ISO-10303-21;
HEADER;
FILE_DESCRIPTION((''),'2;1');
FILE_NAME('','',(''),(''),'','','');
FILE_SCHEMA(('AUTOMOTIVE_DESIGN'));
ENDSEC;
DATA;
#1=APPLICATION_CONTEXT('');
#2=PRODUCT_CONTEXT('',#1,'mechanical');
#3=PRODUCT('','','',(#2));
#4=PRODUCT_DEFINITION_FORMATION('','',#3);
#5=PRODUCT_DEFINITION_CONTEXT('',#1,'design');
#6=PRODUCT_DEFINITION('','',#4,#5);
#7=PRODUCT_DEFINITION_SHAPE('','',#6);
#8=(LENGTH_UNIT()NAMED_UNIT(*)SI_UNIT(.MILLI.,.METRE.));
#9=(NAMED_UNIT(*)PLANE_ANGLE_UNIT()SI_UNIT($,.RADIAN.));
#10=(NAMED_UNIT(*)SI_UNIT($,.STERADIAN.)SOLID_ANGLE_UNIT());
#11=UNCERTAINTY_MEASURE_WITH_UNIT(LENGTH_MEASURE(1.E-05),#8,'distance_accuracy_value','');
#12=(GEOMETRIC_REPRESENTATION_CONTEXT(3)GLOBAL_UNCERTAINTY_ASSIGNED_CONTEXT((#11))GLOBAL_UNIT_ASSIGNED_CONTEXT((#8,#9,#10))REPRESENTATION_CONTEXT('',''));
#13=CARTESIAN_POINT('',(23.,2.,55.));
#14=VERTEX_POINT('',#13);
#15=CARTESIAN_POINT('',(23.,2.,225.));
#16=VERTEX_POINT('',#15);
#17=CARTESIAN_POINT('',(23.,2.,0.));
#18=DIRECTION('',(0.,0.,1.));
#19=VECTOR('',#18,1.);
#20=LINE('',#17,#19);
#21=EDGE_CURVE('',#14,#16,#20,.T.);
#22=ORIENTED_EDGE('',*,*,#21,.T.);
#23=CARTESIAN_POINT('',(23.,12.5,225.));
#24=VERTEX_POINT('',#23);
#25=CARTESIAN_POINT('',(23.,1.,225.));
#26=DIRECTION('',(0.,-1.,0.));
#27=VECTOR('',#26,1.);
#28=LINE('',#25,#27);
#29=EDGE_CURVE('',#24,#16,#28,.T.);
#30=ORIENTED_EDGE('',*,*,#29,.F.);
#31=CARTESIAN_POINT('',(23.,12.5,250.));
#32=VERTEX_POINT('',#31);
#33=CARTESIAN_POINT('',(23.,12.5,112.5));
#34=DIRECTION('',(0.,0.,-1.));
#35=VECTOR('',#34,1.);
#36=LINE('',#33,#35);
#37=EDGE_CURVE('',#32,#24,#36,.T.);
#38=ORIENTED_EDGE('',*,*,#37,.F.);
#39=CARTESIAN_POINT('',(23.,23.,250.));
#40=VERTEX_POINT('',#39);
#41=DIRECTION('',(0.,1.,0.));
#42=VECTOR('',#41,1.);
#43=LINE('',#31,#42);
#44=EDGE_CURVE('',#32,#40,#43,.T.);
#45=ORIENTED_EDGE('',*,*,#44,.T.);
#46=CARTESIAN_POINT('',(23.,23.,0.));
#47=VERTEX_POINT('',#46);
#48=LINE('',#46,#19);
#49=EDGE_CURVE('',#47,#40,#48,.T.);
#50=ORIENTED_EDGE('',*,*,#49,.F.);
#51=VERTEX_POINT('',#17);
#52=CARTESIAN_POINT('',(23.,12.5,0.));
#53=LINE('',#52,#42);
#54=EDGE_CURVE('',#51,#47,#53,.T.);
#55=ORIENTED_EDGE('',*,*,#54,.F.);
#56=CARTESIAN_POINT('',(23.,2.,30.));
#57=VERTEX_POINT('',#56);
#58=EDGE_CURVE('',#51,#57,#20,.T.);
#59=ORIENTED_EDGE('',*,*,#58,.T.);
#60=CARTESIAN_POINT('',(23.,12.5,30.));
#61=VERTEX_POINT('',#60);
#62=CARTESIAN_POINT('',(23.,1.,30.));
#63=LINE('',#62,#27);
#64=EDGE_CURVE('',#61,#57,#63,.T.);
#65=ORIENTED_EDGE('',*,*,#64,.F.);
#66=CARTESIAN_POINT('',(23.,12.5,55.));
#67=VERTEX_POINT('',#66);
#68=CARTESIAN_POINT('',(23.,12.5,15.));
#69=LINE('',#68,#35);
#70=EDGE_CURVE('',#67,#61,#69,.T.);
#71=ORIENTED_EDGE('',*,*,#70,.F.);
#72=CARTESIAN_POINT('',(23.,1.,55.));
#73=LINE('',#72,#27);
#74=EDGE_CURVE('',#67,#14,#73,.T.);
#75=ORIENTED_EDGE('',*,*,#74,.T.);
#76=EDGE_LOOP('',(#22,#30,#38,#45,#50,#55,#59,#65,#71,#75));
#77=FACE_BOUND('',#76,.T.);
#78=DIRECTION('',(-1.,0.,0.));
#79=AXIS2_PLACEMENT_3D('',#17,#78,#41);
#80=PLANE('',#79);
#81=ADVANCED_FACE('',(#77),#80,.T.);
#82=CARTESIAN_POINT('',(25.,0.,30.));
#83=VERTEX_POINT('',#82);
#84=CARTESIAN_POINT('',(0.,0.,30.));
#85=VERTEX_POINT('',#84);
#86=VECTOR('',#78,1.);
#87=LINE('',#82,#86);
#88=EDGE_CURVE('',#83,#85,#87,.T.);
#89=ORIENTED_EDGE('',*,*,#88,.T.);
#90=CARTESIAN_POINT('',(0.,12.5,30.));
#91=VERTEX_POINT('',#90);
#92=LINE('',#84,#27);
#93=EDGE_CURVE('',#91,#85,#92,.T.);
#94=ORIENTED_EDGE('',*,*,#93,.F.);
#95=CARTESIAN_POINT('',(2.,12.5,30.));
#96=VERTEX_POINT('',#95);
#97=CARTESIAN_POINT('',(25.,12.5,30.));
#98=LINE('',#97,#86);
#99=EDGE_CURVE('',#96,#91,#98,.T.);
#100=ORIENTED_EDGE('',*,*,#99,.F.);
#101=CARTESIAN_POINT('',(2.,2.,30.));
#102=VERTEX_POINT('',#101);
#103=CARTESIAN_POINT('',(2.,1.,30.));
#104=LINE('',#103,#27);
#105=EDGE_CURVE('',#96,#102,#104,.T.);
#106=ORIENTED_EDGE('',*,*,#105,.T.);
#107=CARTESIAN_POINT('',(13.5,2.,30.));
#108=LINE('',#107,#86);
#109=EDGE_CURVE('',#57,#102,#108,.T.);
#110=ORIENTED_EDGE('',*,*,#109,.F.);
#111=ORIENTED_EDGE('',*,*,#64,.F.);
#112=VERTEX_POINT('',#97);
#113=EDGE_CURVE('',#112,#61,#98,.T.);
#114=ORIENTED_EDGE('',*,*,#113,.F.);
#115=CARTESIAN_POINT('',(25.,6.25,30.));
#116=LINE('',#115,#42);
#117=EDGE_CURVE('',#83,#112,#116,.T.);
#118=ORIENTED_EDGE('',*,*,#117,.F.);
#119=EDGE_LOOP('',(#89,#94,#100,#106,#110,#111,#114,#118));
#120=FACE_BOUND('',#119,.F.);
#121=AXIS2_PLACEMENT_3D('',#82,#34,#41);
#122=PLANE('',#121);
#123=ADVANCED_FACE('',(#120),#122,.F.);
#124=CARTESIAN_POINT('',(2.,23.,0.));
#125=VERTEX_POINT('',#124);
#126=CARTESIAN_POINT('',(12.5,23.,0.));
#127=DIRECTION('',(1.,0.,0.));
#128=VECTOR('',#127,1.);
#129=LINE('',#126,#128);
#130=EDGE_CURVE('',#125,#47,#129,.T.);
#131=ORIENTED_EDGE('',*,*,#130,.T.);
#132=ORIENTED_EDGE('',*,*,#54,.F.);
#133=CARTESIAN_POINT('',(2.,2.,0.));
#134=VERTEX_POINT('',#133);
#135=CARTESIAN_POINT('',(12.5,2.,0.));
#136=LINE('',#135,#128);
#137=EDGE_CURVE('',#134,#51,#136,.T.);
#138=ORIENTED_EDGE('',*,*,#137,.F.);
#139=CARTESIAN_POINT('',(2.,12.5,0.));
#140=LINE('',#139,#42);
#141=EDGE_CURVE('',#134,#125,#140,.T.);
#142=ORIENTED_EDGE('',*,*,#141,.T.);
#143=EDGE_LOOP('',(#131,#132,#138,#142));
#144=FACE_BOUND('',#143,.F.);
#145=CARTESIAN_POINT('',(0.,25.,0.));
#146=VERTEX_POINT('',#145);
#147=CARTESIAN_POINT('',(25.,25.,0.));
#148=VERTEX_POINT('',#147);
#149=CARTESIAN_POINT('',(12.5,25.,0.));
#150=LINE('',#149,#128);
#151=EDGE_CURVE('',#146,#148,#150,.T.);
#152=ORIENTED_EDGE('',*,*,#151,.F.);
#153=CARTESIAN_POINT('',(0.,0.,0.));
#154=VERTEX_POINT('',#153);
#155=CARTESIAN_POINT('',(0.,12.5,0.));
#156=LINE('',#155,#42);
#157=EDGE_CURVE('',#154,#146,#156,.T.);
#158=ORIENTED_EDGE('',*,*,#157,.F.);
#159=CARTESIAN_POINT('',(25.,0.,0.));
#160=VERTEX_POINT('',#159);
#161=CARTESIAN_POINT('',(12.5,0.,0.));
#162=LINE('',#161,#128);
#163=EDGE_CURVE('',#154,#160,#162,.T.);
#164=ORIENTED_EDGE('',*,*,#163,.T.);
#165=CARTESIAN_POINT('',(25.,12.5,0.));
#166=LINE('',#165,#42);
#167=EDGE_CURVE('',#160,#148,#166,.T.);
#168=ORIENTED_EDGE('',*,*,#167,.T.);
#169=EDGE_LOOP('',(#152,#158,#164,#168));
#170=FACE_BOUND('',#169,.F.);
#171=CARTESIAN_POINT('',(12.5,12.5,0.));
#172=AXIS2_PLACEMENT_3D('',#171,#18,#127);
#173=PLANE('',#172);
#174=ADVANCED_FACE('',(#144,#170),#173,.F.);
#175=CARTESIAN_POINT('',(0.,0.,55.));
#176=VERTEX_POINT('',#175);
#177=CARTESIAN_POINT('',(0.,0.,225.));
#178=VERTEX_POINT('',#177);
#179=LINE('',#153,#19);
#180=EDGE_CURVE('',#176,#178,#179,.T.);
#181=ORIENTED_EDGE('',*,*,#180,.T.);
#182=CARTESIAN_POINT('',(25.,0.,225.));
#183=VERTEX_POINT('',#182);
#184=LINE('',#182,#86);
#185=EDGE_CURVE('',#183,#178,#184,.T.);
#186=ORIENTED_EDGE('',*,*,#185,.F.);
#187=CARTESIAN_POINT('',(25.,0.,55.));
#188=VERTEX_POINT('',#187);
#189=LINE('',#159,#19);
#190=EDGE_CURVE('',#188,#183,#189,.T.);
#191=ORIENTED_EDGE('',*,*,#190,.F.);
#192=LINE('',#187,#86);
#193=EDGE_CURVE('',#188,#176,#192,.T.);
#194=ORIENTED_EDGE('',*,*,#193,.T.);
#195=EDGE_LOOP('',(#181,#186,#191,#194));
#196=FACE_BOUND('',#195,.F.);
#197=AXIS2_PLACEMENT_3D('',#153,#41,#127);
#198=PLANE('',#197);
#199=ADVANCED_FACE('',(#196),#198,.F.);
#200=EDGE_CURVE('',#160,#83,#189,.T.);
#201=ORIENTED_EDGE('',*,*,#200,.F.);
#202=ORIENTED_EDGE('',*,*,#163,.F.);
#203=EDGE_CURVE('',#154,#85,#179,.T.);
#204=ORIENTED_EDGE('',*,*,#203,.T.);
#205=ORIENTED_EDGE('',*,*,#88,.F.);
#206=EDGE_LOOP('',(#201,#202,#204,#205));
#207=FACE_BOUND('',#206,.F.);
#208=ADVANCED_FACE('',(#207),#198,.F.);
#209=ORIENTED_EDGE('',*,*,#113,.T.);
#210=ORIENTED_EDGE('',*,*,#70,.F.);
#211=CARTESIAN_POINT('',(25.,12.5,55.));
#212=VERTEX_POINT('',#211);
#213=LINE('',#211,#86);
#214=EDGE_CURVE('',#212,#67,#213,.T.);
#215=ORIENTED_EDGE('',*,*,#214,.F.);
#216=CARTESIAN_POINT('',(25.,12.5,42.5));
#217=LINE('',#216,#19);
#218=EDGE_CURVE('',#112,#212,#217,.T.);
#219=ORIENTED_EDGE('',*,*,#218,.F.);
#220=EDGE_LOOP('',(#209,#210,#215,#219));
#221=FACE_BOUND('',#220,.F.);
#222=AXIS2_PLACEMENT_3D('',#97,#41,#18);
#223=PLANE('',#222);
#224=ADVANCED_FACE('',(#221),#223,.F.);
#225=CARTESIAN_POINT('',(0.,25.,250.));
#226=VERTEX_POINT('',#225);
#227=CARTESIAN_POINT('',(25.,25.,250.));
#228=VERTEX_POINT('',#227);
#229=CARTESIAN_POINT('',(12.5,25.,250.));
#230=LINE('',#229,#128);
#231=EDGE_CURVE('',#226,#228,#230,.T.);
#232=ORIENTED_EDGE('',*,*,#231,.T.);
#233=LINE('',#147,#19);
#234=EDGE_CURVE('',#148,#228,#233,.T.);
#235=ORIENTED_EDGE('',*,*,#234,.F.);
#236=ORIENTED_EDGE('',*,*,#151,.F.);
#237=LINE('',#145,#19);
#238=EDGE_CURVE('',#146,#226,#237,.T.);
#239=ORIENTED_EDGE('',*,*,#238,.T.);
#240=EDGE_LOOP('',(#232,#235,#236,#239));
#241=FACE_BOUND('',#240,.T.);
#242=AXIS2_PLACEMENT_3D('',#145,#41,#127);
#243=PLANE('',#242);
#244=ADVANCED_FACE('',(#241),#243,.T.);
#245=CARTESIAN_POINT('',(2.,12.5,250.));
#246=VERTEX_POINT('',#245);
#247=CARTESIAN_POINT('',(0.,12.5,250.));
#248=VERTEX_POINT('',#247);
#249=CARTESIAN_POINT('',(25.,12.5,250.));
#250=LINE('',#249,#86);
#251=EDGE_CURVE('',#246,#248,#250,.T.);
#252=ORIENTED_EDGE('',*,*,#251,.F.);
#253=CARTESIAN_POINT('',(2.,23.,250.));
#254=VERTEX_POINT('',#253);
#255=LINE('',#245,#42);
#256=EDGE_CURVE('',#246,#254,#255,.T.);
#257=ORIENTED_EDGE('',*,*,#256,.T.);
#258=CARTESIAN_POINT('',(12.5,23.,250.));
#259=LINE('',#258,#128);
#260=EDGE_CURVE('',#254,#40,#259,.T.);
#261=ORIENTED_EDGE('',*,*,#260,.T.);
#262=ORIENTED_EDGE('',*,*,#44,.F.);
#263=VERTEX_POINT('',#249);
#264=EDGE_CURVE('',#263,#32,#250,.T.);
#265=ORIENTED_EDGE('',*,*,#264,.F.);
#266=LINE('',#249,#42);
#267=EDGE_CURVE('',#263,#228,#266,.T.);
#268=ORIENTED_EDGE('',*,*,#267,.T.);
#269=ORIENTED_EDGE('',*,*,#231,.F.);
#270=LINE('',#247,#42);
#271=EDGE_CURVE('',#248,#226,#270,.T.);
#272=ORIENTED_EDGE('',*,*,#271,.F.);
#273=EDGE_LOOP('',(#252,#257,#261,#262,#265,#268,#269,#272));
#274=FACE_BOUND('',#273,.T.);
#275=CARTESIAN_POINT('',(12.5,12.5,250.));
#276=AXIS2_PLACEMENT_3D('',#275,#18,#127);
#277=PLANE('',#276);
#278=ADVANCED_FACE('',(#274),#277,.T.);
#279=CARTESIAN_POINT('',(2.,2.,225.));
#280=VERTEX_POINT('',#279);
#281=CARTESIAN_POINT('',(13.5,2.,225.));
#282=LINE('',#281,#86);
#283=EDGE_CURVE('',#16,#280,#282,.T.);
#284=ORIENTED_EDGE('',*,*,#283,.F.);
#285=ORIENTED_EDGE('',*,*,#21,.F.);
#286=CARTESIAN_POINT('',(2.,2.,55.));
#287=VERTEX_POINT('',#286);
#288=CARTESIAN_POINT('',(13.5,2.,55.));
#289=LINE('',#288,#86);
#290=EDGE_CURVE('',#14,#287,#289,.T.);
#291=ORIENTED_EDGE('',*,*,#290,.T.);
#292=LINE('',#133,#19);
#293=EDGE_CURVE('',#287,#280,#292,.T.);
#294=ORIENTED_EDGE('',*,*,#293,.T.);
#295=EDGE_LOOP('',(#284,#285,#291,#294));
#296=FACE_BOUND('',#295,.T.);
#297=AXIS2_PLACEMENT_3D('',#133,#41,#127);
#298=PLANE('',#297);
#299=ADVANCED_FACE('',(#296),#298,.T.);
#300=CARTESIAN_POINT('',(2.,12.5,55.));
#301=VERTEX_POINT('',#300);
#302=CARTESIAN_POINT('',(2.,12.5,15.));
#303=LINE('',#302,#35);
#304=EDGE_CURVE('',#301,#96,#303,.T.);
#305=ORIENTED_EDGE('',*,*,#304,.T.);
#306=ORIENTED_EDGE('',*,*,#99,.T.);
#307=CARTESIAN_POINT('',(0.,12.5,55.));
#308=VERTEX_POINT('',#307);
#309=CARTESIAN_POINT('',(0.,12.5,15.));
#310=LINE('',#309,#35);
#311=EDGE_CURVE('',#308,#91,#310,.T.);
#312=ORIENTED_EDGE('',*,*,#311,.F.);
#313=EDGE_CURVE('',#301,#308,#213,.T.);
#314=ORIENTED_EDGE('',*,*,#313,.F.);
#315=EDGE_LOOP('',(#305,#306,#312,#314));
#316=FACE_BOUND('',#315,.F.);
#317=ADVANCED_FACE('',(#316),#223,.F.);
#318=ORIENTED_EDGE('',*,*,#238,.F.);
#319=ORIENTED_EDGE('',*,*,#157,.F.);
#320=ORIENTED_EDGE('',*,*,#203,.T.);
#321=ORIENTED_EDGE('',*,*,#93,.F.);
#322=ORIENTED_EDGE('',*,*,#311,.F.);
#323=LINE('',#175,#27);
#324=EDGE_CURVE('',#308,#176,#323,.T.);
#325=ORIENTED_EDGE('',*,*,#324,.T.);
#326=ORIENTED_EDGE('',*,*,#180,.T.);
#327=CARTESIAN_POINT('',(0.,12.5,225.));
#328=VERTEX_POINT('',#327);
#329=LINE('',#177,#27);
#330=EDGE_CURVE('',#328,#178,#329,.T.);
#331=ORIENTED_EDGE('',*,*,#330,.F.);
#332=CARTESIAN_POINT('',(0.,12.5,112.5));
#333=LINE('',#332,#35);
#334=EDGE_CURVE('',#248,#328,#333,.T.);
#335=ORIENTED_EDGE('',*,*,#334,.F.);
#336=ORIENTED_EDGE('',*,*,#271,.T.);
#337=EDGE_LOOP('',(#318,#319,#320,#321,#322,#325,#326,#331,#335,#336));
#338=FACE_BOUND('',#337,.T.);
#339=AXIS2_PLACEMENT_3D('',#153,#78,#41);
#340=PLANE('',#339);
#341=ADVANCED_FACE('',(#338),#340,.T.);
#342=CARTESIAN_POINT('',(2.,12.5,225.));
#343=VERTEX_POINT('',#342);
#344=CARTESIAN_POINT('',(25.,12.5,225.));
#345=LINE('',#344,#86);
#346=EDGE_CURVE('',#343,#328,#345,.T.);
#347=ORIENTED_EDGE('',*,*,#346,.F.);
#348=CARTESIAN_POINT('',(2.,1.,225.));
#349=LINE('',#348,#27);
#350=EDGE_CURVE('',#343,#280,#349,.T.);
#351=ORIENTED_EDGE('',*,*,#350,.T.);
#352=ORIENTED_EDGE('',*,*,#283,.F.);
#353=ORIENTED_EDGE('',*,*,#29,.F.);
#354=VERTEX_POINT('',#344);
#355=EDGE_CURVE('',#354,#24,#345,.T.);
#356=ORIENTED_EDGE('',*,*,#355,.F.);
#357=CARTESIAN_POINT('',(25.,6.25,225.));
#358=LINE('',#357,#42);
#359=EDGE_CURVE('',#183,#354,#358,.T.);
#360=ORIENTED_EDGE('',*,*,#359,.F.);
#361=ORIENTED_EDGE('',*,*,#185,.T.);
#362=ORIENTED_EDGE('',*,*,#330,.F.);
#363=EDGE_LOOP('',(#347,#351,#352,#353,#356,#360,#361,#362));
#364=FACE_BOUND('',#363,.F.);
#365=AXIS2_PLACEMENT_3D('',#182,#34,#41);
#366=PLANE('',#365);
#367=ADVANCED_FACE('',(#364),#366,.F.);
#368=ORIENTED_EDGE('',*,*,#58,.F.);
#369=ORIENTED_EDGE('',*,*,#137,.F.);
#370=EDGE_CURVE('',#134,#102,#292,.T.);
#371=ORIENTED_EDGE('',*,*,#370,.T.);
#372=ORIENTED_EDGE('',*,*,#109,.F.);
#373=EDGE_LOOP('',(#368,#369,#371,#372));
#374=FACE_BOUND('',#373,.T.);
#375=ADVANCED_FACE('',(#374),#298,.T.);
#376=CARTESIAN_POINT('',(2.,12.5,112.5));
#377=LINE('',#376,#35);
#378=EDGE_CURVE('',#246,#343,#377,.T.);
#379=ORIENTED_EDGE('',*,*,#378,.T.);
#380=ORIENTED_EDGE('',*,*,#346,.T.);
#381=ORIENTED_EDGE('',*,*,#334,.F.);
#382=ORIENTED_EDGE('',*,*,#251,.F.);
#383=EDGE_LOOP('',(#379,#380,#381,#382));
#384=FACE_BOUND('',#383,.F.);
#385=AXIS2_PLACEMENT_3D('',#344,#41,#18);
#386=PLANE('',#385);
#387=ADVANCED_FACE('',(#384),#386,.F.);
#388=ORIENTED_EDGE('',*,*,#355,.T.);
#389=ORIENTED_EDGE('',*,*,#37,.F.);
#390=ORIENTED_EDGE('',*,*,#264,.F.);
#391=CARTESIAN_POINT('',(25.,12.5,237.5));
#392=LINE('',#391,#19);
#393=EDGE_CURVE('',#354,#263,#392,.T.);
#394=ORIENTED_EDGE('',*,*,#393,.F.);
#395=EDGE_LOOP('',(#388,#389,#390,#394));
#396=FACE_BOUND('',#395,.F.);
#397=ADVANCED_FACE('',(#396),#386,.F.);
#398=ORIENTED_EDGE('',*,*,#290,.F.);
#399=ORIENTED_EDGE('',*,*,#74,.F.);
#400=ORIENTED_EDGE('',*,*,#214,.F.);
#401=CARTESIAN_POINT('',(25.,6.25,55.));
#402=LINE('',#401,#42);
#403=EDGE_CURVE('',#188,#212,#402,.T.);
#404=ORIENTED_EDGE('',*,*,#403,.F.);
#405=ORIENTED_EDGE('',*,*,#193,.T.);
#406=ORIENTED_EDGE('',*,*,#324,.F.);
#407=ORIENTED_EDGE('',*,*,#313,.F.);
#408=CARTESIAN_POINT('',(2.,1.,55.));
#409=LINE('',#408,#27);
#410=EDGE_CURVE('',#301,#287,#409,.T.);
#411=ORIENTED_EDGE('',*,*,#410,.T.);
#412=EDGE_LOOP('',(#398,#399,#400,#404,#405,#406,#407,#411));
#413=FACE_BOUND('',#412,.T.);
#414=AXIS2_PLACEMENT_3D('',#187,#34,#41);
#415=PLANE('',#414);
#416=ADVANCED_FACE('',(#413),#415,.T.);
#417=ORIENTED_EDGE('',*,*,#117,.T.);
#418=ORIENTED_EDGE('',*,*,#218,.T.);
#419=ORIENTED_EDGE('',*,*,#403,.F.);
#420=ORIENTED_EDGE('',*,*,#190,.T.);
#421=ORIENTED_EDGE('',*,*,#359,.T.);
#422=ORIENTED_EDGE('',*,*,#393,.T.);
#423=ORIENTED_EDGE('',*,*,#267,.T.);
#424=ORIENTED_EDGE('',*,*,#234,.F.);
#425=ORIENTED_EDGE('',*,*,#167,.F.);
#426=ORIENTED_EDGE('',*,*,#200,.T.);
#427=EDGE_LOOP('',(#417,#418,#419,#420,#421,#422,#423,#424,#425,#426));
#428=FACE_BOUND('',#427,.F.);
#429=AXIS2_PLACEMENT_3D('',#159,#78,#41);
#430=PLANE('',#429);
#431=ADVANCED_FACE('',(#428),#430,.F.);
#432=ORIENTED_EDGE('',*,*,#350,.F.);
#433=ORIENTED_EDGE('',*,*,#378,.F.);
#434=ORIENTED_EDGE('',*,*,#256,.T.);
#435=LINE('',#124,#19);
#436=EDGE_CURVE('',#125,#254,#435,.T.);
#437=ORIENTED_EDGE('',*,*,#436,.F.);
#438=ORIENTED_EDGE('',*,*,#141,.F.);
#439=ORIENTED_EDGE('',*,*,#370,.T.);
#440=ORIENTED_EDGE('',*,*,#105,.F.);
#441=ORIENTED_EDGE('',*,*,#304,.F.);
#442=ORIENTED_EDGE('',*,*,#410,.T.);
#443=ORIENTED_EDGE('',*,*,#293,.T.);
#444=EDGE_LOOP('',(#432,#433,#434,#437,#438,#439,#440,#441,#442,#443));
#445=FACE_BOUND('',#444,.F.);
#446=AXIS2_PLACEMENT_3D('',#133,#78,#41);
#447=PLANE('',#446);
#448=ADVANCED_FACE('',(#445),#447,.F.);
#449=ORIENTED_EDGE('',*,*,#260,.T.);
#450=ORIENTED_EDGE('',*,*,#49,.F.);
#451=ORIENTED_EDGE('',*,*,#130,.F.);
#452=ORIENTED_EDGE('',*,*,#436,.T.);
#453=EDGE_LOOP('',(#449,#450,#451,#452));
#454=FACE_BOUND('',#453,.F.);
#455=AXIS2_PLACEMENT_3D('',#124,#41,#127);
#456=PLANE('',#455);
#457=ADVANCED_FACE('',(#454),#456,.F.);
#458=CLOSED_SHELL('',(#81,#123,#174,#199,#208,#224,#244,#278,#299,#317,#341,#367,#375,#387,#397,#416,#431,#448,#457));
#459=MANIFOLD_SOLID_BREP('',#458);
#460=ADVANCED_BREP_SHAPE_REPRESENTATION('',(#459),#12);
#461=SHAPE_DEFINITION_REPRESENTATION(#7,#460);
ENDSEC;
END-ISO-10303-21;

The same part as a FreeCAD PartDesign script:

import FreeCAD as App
import Part
import Sketcher
from FreeCAD import Vector


def add_polygon(sketch, points):
    """Adds a closed chain of lines whose ends are joined by coincident constraints."""
    first, n = sketch.GeometryCount, len(points)
    for a, b in zip(points, points[1:] + points[:1]):
        sketch.addGeometry(Part.LineSegment(App.Vector(*a, 0), App.Vector(*b, 0)), False)
    for i in range(n):
        sketch.addConstraint(Sketcher.Constraint("Coincident", first + i, 2, first + (i + 1) % n, 1))

doc = App.newDocument("Part")
params = doc.addObject("Spreadsheet::Sheet", "Params")
for row, (alias, value) in enumerate([
    ("sketch1_width", "25 mm"),
    ("sketch1_width2", "21 mm"),
    ("pad1_length", "250 mm"),
    ("sketch2_height", "25 mm"),
    ("sketch2_width", "12.5 mm"),
], start=1):
    params.set(f"A{row}", alias)
    params.set(f"B{row}", "=" + value)
    params.setAlias(f"B{row}", alias)

body = doc.addObject("PartDesign::Body", "Body")

sketch1 = body.newObject("Sketcher::SketchObject", "Sketch")
sketch1.AttachmentSupport = (doc.getObject("XY_Plane"), [""])
sketch1.MapMode = "FlatFace"
add_polygon(sketch1, [(0, 25), (0, 0), (25, 0), (25, 25)])
add_polygon(sketch1, [(23, 2), (2, 2), (2, 23), (23, 23)])
sketch1.addConstraint(Sketcher.Constraint("Vertical", 0))
sketch1.addConstraint(Sketcher.Constraint("Horizontal", 1))
sketch1.addConstraint(Sketcher.Constraint("Vertical", 2))
sketch1.addConstraint(Sketcher.Constraint("Horizontal", 3))
sketch1.addConstraint(Sketcher.Constraint("Horizontal", 4))
sketch1.addConstraint(Sketcher.Constraint("Vertical", 5))
sketch1.addConstraint(Sketcher.Constraint("Horizontal", 6))
sketch1.addConstraint(Sketcher.Constraint("Vertical", 7))
sketch1.addConstraint(Sketcher.Constraint("Coincident", 0, 2, -1, 1))
sketch1.addConstraint(Sketcher.Constraint("Equal", 3, 0))
sketch1.addConstraint(Sketcher.Constraint("Equal", 6, 5))
sketch1.addConstraint(Sketcher.Constraint("DistanceX", 1, 1, 1, 2, 25.0))
sketch1.addConstraint(Sketcher.Constraint("DistanceX", 4, 2, 4, 1, 21.0))
sketch1.addConstraint(Sketcher.Constraint("DistanceX", -1, 1, 4, 2, 2.0))
sketch1.addConstraint(Sketcher.Constraint("DistanceY", -1, 1, 4, 2, 2.0))
sketch1.setExpression("Constraints[19]", "Params.sketch1_width")
sketch1.setExpression("Constraints[20]", "Params.sketch1_width2")
pad1 = body.newObject("PartDesign::Pad", "Pad")
pad1.Profile = sketch1
pad1.setExpression("Length", "Params.pad1_length")

sketch2 = body.newObject("Sketcher::SketchObject", "Sketch001")
sketch2.AttachmentSupport = (doc.getObject("YZ_Plane"), [""])
sketch2.MapMode = "FlatFace"
sketch2.AttachmentOffset = App.Placement(Vector(0, 0, 25), App.Rotation())
add_polygon(sketch2, [(0, 250), (0, 225), (12, 225), (12, 250)])
add_polygon(sketch2, [(0, 55), (0, 30), (12, 30), (12, 55)])
sketch2.addConstraint(Sketcher.Constraint("Vertical", 0))
sketch2.addConstraint(Sketcher.Constraint("Horizontal", 1))
sketch2.addConstraint(Sketcher.Constraint("Vertical", 2))
sketch2.addConstraint(Sketcher.Constraint("Horizontal", 3))
sketch2.addConstraint(Sketcher.Constraint("Vertical", 4))
sketch2.addConstraint(Sketcher.Constraint("Horizontal", 5))
sketch2.addConstraint(Sketcher.Constraint("Vertical", 6))
sketch2.addConstraint(Sketcher.Constraint("Horizontal", 7))
sketch2.addConstraint(Sketcher.Constraint("PointOnObject", 0, 2, -2))
sketch2.addConstraint(Sketcher.Constraint("PointOnObject", 4, 2, -2))
sketch2.addConstraint(Sketcher.Constraint("Vertical", 2, 2, 5, 2))
sketch2.addConstraint(Sketcher.Constraint("Equal", 2, 4))
sketch2.addConstraint(Sketcher.Constraint("DistanceY", 0, 2, 0, 1, 25.0))
sketch2.addConstraint(Sketcher.Constraint("DistanceX", 1, 1, 1, 2, 12.5))
sketch2.addConstraint(Sketcher.Constraint("DistanceY", -1, 1, 0, 2, 225.0))
sketch2.addConstraint(Sketcher.Constraint("DistanceY", -1, 1, 4, 2, 30.0))
sketch2.setExpression("Constraints[20]", "Params.sketch2_height")
sketch2.setExpression("Constraints[21]", "Params.sketch2_width")
pocket1 = body.newObject("PartDesign::Pocket", "Pocket")
pocket1.Profile = sketch2
pocket1.Type = "ThroughAll"

doc.recompute()
